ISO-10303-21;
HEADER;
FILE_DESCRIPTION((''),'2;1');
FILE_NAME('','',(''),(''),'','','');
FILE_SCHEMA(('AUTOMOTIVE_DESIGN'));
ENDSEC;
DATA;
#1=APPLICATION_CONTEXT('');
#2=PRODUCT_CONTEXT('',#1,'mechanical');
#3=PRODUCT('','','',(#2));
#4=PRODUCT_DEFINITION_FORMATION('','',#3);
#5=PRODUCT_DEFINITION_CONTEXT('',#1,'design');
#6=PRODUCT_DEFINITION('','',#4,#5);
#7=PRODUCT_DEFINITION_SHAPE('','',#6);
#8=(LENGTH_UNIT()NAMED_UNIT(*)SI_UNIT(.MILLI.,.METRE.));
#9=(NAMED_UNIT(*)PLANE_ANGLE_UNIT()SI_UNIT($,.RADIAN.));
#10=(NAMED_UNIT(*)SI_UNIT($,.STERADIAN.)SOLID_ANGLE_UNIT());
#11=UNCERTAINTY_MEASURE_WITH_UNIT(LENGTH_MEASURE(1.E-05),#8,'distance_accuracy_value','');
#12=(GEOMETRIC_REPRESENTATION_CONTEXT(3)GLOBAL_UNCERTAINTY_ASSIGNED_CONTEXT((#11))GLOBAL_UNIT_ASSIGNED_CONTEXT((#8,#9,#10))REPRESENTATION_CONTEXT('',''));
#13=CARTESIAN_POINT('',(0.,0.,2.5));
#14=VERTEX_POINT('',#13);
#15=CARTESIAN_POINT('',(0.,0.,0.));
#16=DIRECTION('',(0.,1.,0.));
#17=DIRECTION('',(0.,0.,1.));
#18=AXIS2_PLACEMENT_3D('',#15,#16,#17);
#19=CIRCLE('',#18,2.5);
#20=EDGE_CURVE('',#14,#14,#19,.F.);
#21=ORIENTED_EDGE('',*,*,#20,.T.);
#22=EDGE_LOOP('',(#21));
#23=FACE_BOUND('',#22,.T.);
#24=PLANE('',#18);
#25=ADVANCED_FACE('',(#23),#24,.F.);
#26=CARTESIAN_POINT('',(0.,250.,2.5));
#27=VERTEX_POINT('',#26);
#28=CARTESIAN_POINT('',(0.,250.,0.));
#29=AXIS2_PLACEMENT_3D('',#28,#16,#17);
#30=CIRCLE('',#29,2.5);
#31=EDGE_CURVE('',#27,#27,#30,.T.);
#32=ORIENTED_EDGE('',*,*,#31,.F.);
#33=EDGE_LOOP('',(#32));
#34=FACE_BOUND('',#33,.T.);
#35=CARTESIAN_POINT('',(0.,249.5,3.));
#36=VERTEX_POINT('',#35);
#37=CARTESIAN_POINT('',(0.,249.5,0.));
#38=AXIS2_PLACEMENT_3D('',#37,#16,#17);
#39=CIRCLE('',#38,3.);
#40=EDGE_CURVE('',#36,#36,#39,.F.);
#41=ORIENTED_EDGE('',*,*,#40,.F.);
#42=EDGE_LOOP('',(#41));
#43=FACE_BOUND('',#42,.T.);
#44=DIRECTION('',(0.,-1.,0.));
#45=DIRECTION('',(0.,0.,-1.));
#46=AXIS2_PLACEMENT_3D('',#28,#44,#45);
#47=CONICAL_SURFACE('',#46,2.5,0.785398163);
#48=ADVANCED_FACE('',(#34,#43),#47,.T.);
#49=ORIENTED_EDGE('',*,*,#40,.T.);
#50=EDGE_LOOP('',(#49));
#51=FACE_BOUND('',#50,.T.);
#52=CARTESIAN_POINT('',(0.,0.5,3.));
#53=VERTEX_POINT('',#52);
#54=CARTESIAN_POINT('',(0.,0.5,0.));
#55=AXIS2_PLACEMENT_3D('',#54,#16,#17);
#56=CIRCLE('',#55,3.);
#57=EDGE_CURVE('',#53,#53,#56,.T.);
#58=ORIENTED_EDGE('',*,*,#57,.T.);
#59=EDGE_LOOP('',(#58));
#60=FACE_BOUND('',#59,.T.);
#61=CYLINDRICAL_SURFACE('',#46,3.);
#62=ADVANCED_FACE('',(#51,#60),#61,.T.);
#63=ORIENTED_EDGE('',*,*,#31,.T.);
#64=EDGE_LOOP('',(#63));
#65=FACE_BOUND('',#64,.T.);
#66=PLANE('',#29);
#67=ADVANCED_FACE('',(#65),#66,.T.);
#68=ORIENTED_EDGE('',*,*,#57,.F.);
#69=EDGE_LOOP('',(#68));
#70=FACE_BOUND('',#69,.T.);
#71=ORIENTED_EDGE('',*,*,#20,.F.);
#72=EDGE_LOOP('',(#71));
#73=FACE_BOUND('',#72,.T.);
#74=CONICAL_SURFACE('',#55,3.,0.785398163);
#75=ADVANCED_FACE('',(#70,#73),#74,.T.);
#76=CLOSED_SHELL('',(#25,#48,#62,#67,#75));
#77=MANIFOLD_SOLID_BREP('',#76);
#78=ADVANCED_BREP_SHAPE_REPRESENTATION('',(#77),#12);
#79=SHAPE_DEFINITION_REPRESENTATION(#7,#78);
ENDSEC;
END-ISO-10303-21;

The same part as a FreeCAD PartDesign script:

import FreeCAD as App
import Part
import Sketcher

V = App.Vector


def edges_at(feature, points):
    """Names of the edges that pass closest to the given points."""
    edges = feature.Shape.Edges
    near = lambda p: min(range(len(edges)), key=lambda i: edges[i].distToShape(Part.Vertex(*p))[0])
    return sorted({f"Edge{near(p) + 1}" for p in points})

doc = App.newDocument("Part")
body = doc.addObject("PartDesign::Body", "Body")

# Sketch on XZ plane
sketch1 = body.newObject("Sketcher::SketchObject", "Sketch")
sketch1.AttachmentSupport = (doc.getObject("XZ_Plane"), [""])
sketch1.MapMode = "FlatFace"
sketch1.addGeometry(Part.Circle(V(0, 0, 0), V(0, 0, 1), 3), False)
sketch1.addConstraint([
    Sketcher.Constraint("Coincident", 0, 3, -1, 1),
    Sketcher.Constraint("Diameter", 0, 6.0),
])
pad1 = body.newObject("PartDesign::Pad", "Pad")
pad1.Profile = sketch1
pad1.Length = 250
pad1.Reversed = True
doc.recompute()

chamfer = body.newObject("PartDesign::Chamfer", "Chamfer")
chamfer.Base = (pad1, edges_at(pad1, [(-3, 0, 0), (-3, 250, 0)]))
chamfer.Size = 0.5

doc.recompute()
